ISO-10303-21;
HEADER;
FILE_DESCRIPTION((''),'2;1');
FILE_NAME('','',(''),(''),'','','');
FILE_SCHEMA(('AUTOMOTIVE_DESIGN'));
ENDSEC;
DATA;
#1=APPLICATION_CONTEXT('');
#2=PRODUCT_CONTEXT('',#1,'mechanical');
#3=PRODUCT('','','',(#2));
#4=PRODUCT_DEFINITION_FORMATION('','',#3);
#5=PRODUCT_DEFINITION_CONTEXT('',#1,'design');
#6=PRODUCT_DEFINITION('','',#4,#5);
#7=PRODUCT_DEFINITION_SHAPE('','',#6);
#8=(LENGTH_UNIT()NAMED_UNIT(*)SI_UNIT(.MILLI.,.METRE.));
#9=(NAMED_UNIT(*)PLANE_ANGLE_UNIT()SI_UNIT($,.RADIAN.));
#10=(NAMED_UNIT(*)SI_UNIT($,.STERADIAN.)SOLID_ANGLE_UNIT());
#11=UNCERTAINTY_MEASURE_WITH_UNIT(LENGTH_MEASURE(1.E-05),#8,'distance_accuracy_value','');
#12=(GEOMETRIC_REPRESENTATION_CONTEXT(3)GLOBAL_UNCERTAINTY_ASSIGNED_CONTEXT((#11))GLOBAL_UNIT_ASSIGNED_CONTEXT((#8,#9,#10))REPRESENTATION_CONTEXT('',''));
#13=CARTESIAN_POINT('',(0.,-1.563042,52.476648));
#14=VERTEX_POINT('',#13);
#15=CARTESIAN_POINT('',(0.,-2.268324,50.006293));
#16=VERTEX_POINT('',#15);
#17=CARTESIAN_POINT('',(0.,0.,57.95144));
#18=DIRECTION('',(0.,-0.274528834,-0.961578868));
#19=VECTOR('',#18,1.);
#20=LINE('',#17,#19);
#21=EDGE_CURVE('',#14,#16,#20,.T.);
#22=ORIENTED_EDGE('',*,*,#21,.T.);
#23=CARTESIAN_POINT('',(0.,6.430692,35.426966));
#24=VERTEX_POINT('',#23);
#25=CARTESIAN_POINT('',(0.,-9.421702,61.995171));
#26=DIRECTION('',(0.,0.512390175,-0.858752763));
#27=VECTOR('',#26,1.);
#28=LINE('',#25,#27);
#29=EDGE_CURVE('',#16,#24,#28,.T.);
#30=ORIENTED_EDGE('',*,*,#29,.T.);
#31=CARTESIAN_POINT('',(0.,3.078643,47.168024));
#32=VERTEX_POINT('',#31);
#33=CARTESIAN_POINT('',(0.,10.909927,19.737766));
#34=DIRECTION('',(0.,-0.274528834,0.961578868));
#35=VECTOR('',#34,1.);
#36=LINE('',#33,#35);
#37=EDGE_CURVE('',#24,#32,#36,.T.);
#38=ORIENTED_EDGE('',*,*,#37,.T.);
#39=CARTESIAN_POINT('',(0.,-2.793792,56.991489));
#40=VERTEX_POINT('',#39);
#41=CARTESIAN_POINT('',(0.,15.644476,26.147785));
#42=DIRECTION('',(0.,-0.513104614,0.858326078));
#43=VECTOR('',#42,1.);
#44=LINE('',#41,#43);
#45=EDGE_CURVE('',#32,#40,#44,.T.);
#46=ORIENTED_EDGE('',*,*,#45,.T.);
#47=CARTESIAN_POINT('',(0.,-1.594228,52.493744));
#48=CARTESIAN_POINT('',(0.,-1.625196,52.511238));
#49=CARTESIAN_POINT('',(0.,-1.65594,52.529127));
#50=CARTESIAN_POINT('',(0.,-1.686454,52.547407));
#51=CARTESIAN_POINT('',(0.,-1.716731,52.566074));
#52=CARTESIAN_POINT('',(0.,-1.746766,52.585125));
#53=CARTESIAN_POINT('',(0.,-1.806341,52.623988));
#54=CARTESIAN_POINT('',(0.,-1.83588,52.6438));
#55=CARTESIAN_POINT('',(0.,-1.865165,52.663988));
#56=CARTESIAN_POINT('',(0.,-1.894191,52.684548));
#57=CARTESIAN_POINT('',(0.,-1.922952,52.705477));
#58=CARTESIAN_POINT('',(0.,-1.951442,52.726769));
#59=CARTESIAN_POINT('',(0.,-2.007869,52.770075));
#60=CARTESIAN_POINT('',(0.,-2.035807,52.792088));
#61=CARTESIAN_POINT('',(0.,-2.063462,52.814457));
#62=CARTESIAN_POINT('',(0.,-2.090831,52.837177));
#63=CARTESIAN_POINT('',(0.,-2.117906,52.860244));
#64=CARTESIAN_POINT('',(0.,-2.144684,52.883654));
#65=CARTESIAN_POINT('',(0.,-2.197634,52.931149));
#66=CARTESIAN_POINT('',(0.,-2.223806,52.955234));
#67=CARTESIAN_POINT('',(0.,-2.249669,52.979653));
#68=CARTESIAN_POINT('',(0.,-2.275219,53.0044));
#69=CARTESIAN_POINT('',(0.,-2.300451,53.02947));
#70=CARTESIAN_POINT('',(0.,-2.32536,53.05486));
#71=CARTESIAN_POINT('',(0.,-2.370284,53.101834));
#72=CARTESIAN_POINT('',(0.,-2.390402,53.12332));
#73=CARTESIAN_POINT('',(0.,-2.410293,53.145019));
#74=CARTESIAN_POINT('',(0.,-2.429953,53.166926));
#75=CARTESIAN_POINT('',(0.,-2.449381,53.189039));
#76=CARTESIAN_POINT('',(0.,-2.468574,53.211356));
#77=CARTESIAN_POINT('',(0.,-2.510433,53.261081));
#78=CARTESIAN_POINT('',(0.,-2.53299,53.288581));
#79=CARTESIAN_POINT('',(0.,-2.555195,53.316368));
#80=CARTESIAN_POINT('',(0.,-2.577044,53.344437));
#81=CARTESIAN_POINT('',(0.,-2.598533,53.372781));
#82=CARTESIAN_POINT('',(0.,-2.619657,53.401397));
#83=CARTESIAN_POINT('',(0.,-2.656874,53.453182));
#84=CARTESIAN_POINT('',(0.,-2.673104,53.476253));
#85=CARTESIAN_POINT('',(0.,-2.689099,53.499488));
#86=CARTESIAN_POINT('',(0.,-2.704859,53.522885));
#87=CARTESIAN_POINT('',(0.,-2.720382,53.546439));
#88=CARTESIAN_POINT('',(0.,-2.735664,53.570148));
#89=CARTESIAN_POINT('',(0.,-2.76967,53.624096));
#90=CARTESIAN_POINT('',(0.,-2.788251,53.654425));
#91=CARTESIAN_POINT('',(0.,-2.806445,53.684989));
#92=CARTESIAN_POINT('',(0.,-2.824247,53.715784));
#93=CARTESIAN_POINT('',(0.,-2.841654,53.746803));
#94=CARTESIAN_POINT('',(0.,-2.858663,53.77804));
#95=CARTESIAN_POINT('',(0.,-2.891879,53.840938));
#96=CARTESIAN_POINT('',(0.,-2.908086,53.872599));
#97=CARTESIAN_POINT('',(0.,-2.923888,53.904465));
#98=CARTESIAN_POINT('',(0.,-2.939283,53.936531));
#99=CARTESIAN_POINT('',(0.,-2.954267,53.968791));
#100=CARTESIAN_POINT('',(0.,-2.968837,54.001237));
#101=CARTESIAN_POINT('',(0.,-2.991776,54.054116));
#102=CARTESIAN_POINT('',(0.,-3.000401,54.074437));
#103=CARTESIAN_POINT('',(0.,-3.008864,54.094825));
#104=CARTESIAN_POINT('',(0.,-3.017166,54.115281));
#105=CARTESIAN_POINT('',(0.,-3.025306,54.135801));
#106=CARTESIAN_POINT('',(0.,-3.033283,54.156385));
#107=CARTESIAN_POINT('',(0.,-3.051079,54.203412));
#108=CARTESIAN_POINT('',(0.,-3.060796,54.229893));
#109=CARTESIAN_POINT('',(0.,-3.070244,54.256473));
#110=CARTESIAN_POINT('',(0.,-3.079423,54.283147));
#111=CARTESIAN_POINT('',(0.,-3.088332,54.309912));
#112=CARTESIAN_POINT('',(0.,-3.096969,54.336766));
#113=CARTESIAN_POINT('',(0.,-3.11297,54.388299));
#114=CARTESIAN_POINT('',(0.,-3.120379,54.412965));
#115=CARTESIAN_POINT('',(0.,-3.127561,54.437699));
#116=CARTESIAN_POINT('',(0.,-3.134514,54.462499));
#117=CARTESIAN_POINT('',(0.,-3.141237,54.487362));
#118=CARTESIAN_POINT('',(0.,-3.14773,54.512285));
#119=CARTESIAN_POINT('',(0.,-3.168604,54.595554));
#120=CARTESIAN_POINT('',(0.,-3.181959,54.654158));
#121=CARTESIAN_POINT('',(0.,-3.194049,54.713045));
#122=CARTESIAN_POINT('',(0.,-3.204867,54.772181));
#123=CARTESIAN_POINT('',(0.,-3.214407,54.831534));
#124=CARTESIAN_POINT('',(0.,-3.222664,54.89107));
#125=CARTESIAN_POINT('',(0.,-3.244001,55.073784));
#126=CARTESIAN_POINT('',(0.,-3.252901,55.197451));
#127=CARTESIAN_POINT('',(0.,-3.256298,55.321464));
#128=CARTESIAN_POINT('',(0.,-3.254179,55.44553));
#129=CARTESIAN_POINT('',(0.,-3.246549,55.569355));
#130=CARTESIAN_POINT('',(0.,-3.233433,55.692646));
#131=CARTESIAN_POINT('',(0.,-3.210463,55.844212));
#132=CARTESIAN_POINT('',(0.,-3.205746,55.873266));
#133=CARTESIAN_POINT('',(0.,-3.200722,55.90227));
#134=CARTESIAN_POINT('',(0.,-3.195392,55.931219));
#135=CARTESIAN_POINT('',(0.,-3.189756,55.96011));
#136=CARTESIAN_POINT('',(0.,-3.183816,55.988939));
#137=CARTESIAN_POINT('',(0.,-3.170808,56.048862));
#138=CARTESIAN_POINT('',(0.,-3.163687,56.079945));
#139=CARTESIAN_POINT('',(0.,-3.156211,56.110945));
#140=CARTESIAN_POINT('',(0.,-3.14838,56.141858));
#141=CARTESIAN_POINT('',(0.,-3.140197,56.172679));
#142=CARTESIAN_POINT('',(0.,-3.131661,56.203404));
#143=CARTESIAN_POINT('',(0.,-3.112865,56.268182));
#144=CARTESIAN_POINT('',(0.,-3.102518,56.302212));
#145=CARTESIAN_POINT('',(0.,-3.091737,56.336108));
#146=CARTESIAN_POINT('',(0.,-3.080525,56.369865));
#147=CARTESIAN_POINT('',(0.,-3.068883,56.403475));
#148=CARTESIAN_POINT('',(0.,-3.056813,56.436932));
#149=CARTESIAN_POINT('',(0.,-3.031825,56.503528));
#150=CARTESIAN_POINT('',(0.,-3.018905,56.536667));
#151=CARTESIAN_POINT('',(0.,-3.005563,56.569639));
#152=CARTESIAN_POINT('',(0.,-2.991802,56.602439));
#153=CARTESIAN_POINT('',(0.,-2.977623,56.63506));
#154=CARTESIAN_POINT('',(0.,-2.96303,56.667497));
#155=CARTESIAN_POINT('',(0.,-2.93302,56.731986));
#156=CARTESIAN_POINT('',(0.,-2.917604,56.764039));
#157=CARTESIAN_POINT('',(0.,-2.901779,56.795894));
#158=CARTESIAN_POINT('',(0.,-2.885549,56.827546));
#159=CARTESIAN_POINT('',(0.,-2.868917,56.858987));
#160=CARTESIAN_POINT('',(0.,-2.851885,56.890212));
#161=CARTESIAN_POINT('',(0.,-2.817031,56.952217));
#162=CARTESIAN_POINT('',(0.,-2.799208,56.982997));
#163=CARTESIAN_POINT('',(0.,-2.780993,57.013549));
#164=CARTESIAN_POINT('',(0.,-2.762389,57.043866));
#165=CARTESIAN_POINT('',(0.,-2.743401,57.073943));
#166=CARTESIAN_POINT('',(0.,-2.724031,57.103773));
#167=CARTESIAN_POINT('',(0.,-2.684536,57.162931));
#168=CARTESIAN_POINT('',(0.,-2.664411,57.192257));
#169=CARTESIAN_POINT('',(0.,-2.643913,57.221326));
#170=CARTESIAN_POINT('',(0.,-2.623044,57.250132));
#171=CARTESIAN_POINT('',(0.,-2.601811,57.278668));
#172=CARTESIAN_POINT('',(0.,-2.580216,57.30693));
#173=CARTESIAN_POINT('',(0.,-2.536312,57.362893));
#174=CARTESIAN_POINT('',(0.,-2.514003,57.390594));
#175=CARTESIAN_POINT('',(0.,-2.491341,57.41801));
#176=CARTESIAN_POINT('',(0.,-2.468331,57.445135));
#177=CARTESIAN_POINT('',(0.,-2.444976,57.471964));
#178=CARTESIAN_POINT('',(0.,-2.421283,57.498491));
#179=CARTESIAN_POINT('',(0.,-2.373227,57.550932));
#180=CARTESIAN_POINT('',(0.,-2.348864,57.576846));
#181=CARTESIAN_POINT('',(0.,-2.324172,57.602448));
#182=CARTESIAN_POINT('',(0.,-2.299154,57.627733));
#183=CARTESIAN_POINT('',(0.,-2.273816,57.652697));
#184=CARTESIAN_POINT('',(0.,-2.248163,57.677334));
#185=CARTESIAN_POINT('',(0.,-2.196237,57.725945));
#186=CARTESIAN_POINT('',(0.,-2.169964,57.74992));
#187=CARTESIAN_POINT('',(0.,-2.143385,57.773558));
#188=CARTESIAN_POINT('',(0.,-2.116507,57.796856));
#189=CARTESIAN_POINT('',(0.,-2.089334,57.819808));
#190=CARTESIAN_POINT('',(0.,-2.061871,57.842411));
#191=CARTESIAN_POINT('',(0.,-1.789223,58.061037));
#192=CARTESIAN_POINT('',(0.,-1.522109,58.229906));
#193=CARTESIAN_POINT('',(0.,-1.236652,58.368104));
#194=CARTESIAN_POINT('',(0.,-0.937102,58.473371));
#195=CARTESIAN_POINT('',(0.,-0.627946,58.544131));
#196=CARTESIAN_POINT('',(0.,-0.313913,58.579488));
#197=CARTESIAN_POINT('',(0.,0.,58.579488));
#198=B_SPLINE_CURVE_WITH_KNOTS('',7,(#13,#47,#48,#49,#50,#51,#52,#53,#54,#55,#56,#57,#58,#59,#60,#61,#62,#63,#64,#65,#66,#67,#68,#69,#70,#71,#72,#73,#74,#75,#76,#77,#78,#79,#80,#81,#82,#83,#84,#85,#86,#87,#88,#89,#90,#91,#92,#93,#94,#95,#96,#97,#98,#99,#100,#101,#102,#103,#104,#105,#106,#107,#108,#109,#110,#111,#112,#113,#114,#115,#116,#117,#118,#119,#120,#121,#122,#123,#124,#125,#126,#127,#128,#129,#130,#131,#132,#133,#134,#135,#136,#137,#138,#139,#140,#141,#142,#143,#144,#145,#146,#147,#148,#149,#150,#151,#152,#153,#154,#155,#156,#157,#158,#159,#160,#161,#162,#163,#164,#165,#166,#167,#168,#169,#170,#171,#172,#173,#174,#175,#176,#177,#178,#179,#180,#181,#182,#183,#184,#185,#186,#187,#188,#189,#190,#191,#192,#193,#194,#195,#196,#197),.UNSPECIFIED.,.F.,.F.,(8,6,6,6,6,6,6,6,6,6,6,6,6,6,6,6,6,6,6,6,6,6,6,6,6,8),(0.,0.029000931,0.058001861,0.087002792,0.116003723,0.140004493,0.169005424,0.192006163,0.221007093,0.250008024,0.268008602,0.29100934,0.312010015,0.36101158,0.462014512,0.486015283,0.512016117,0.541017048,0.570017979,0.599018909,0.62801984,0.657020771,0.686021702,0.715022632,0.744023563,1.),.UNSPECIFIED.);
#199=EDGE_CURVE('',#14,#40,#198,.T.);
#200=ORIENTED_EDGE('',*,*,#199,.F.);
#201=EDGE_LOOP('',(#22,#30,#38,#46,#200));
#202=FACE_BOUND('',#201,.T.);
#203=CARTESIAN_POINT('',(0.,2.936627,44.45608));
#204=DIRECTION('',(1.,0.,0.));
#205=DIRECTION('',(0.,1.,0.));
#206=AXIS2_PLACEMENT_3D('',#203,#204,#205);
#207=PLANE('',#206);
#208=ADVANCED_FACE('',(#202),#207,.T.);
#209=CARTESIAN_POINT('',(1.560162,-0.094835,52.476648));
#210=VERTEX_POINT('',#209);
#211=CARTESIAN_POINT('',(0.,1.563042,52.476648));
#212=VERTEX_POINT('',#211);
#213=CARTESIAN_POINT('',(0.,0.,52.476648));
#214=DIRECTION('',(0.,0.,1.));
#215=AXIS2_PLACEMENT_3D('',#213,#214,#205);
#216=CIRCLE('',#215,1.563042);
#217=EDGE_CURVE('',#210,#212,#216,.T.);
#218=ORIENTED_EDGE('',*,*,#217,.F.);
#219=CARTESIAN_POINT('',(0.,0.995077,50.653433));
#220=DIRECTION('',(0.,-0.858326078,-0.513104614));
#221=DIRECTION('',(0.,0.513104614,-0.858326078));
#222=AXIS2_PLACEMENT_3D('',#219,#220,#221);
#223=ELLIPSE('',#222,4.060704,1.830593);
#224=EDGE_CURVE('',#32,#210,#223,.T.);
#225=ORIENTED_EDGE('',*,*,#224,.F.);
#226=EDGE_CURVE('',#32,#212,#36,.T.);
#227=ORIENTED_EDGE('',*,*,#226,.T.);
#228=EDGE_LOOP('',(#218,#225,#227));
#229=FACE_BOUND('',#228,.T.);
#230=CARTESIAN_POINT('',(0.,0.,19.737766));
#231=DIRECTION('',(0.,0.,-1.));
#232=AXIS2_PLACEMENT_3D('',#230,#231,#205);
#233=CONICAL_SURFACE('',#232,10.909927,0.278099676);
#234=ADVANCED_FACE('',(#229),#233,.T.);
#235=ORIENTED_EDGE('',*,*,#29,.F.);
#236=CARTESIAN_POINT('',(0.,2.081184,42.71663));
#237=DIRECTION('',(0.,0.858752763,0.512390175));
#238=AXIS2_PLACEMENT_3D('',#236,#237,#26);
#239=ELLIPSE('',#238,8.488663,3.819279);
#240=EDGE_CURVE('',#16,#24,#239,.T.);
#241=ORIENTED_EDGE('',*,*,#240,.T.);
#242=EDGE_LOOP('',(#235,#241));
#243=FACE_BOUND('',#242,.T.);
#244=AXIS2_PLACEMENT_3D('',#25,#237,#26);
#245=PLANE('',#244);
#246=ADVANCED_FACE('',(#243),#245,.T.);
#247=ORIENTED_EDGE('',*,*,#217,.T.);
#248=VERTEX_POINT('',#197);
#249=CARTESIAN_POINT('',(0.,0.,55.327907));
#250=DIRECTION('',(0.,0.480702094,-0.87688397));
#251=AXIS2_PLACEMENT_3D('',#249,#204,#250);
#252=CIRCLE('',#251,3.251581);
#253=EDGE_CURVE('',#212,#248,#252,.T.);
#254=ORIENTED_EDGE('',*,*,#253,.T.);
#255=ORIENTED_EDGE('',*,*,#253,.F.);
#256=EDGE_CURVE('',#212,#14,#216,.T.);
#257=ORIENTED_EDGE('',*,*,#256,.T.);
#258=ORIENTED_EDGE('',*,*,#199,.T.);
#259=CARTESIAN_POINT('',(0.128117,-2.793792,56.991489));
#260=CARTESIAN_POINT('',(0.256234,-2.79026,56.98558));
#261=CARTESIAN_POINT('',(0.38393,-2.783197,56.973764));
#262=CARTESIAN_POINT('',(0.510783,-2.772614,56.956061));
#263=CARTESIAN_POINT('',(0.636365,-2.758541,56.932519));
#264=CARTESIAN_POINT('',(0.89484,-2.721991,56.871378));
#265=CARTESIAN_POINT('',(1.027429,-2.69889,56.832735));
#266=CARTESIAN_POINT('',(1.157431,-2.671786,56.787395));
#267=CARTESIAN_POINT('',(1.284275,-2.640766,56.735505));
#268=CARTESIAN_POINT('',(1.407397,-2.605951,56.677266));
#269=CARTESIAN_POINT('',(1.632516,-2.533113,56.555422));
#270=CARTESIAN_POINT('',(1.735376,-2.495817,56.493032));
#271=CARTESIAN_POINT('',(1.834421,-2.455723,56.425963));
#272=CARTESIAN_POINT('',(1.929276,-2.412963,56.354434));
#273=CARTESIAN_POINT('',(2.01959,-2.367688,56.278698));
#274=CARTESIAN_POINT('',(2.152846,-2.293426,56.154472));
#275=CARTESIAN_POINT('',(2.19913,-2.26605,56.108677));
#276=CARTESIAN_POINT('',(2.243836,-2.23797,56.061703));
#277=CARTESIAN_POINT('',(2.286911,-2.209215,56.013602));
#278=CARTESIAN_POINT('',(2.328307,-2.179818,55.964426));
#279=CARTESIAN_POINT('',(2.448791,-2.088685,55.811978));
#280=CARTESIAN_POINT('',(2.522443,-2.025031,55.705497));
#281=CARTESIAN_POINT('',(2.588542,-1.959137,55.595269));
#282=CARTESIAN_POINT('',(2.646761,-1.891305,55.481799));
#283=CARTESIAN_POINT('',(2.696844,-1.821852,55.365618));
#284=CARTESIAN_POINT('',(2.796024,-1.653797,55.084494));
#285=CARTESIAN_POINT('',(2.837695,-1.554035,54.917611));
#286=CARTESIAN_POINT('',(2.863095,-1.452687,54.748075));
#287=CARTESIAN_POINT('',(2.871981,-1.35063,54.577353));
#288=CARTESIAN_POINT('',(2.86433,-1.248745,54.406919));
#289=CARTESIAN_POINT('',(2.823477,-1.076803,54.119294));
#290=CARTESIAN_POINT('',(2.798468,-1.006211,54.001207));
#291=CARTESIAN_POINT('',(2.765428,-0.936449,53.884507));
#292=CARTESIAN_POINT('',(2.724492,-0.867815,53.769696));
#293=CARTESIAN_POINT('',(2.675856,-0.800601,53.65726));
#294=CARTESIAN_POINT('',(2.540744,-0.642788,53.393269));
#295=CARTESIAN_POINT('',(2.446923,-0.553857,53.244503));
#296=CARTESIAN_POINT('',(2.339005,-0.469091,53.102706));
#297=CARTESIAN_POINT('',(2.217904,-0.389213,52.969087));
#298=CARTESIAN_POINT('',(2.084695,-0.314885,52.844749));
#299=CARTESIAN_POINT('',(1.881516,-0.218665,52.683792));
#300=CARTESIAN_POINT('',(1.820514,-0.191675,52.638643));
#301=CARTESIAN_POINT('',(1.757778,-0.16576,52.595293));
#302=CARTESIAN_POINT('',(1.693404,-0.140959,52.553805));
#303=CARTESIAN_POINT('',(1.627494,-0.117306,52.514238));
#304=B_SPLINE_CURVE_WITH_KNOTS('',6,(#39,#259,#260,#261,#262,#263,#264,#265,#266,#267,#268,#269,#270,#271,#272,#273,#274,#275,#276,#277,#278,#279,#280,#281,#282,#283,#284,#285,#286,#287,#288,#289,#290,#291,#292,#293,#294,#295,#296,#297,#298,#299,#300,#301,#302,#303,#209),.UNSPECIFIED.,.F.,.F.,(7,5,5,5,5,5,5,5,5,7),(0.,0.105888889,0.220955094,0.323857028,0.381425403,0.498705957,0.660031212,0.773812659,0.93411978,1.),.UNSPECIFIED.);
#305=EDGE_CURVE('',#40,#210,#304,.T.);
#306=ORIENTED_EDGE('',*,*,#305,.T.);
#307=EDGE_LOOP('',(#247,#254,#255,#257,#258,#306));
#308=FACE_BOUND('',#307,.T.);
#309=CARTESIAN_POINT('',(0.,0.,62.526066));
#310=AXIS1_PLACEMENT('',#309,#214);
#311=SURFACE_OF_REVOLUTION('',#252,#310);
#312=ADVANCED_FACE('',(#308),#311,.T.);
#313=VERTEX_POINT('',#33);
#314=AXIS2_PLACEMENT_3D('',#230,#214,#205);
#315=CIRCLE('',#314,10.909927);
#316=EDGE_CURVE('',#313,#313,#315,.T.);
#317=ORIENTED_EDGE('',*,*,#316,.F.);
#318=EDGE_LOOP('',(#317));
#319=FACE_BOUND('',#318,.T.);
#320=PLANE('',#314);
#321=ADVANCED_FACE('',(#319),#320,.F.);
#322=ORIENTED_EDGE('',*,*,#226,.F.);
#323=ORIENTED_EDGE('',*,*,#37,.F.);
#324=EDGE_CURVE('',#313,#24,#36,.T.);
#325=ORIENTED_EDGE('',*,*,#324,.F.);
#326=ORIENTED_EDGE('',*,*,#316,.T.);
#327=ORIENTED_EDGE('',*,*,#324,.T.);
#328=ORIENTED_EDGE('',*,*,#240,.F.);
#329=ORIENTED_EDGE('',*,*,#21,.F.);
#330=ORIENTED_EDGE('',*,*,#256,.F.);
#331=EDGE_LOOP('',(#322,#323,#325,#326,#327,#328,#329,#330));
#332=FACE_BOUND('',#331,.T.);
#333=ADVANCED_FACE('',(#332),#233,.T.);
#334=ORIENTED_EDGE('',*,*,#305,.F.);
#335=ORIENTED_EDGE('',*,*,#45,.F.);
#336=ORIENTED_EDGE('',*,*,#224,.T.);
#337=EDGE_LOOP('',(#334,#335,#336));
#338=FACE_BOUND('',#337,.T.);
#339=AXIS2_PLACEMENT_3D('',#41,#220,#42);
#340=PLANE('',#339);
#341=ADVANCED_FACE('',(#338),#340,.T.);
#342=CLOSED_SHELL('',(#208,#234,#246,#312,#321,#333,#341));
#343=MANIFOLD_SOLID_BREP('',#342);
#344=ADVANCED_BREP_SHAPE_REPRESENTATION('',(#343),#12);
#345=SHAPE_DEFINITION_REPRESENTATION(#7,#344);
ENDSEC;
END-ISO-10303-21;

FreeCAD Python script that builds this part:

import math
import FreeCAD as App
import Part
import Sketcher


def add_polygon(sketch, points):
    """Adds a closed chain of lines whose ends are joined by coincident constraints."""
    first, n = sketch.GeometryCount, len(points)
    for a, b in zip(points, points[1:] + points[:1]):
        sketch.addGeometry(Part.LineSegment(App.Vector(*a, 0), App.Vector(*b, 0)), False)
    for i in range(n):
        sketch.addConstraint(Sketcher.Constraint("Coincident", first + i, 2, first + (i + 1) % n, 1))

doc = App.newDocument("Part")
body = doc.addObject("PartDesign::Body", "Body")

# Sketch on YZ plane
sketch1 = body.newObject("Sketcher::SketchObject", "Sketch")
sketch1.AttachmentSupport = (doc.getObject("YZ_Plane"), [""])
sketch1.MapMode = "FlatFace"
sketch1.addGeometry([
    Part.LineSegment(App.Vector(0, 19.7, 0), App.Vector(10.9, 19.7, 0)),
    Part.LineSegment(App.Vector(10.9, 19.7, 0), App.Vector(1.6, 52.5, 0)),
    Part.ArcOfCircle(Part.Circle(App.Vector(0, 55.3, 0), App.Vector(0, 0, 1), 3.3), math.radians(-61), math.radians(90)),
    Part.LineSegment(App.Vector(0, 58.6, 0), App.Vector(0, 19.7, 0)),
], False)
sketch1.addConstraint([
    Sketcher.Constraint("Coincident", 0, 2, 1, 1),
    Sketcher.Constraint("Coincident", 1, 2, 2, 1),
    Sketcher.Constraint("Coincident", 2, 2, 3, 1),
    Sketcher.Constraint("Coincident", 3, 2, 0, 1),
    Sketcher.Constraint("Horizontal", 0),
    Sketcher.Constraint("Vertical", 3),
    Sketcher.Constraint("PointOnObject", 2, 3, -2),
    Sketcher.Constraint("PointOnObject", 2, 2, -2),
    Sketcher.Constraint("Radius", 2, 3.251581),
    Sketcher.Constraint("DistanceY", 3, 2, 3, 1, 38.841722),
    Sketcher.Constraint("DistanceX", 0, 1, 0, 2, 10.909927),
    Sketcher.Constraint("DistanceX", 2, 3, 1, 2, 1.563042),
    Sketcher.Constraint("DistanceY", -1, 1, 2, 3, 55.327907),
])
revolution = body.newObject("PartDesign::Revolution", "Revolution")
revolution.Profile = sketch1
revolution.ReferenceAxis = (sketch1, ["V_Axis"])
revolution.Angle = 360

# Sketch on YZ plane
sketch2 = body.newObject("Sketcher::SketchObject", "Sketch001")
sketch2.AttachmentSupport = (doc.getObject("YZ_Plane"), [""])
sketch2.MapMode = "FlatFace"
add_polygon(sketch2, [(15.6, 26.1), (-6.6, 63.4), (-9.4, 62), (11.1, 27.5)])  # lines 0-3
sketch2.addConstraint([
    Sketcher.Constraint("Distance", 3, 4.705),
    Sketcher.Constraint("DistanceY", -1, 1, 1, 2, 61.995171),
    Sketcher.Constraint("DistanceX", -1, 1, 2, 2, 11.145549),
    Sketcher.Constraint("DistanceY", 2, 2, 0, 2, 35.866421),
    Sketcher.Constraint("DistanceX", 1, 2, 2, 2, 20.567251),
    Sketcher.Constraint("DistanceX", 0, 2, 3, 2, 22.26412),
    Sketcher.Constraint("DistanceX", 1, 2, 3, 2, 25.066178),
    Sketcher.Constraint("Distance", 1, 3.130656),
])
pocket1 = body.newObject("PartDesign::Pocket", "Pocket")
pocket1.Profile = sketch2
pocket1.Type = "ThroughAll"
pocket1.Reversed = True

doc.recompute()
